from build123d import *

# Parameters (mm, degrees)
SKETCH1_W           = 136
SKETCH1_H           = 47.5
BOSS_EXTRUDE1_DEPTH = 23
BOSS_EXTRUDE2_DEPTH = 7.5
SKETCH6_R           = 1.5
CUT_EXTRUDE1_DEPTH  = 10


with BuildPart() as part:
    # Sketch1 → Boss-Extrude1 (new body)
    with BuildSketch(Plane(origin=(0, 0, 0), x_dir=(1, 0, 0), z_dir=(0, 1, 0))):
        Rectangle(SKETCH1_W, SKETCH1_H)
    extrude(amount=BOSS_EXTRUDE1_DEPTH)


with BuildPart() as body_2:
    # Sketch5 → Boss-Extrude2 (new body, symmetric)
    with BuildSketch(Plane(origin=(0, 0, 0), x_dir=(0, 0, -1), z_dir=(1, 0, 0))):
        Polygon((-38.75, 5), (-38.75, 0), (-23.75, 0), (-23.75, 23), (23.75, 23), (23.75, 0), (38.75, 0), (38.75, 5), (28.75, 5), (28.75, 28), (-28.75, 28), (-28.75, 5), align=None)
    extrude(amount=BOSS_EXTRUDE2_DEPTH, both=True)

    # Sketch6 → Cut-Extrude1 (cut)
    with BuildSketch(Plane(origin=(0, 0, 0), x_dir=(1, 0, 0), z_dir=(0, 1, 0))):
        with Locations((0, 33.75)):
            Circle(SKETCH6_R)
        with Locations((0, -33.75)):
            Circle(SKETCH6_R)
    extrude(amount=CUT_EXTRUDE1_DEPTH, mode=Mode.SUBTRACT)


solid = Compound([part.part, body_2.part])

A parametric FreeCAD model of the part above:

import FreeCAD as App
import Part
import Sketcher

V = App.Vector

doc = App.newDocument("Part")
params = doc.addObject("Spreadsheet::Sheet", "Params")
for row, (alias, value) in enumerate([
    ("sketch1_width", "136 mm"),
    ("sketch1_height", "47.5 mm"),
    ("pad1_length", "23 mm"),
    ("sketch2_width", "5 mm"),
    ("sketch2_width2", "23 mm"),
    ("sketch2_height", "15 mm"),
    ("sketch2_height2", "10 mm"),
    ("sketch2_height3", "47.5 mm"),
    ("pad2_length", "15 mm"),
    ("sketch3_diameter", "3 mm"),
    ("pocket1_length", "10 mm"),
], start=1):
    params.set(f"A{row}", alias)
    params.set(f"B{row}", "=" + value)
    params.setAlias(f"B{row}", alias)

body = doc.addObject("PartDesign::Body", "Body")

# Sketch on XZ plane
sketch1 = body.newObject("Sketcher::SketchObject", "Sketch")
sketch1.AttachmentSupport = (doc.getObject("XZ_Plane"), [""])
sketch1.MapMode = "FlatFace"
sketch1.addGeometry(Part.LineSegment(V(-68, -24, 0), V(-68, 24, 0)), False)
sketch1.addGeometry(Part.LineSegment(V(-68, 24, 0), V(68, 24, 0)), False)
sketch1.addGeometry(Part.LineSegment(V(68, 24, 0), V(68, -24, 0)), False)
sketch1.addGeometry(Part.LineSegment(V(68, -24, 0), V(-68, -24, 0)), False)
sketch1.addConstraint(Sketcher.Constraint("Coincident", 0, 2, 1, 1))
sketch1.addConstraint(Sketcher.Constraint("Coincident", 1, 2, 2, 1))
sketch1.addConstraint(Sketcher.Constraint("Coincident", 2, 2, 3, 1))
sketch1.addConstraint(Sketcher.Constraint("Coincident", 3, 2, 0, 1))
sketch1.addConstraint(Sketcher.Constraint("Vertical", 0))
sketch1.addConstraint(Sketcher.Constraint("Horizontal", 1))
sketch1.addConstraint(Sketcher.Constraint("Vertical", 2))
sketch1.addConstraint(Sketcher.Constraint("Horizontal", 3))
sketch1.addConstraint(Sketcher.Constraint("Symmetric", 0, 2, 2, 2, -1, 1))
sketch1.addConstraint(Sketcher.Constraint("DistanceX", 1, 1, 1, 2, 136.0))
sketch1.addConstraint(Sketcher.Constraint("DistanceY", 0, 1, 0, 2, 47.5))
sketch1.setExpression("Constraints[9]", "Params.sketch1_width")
sketch1.setExpression("Constraints[10]", "Params.sketch1_height")
pad1 = body.newObject("PartDesign::Pad", "Pad")
pad1.Profile = sketch1
pad1.setExpression("Length", "Params.pad1_length")
pad1.Reversed = True
body2 = doc.addObject("PartDesign::Body", "Body001")

# Sketch on YZ plane
sketch2 = body2.newObject("Sketcher::SketchObject", "Sketch001")
sketch2.AttachmentSupport = (doc.getObject("YZ_Plane001"), [""])
sketch2.MapMode = "FlatFace"
sketch2.addGeometry(Part.LineSegment(V(5, 39, 0), V(0, 39, 0)), False)
sketch2.addGeometry(Part.LineSegment(V(0, 39, 0), V(0, 24, 0)), False)
sketch2.addGeometry(Part.LineSegment(V(0, 24, 0), V(23, 24, 0)), False)
sketch2.addGeometry(Part.LineSegment(V(23, 24, 0), V(23, -24, 0)), False)
sketch2.addGeometry(Part.LineSegment(V(23, -24, 0), V(0, -24, 0)), False)
sketch2.addGeometry(Part.LineSegment(V(0, -24, 0), V(0, -39, 0)), False)
sketch2.addGeometry(Part.LineSegment(V(0, -39, 0), V(5, -39, 0)), False)
sketch2.addGeometry(Part.LineSegment(V(5, -39, 0), V(5, -29, 0)), False)
sketch2.addGeometry(Part.LineSegment(V(5, -29, 0), V(28, -29, 0)), False)
sketch2.addGeometry(Part.LineSegment(V(28, -29, 0), V(28, 29, 0)), False)
sketch2.addGeometry(Part.LineSegment(V(28, 29, 0), V(5, 29, 0)), False)
sketch2.addGeometry(Part.LineSegment(V(5, 29, 0), V(5, 39, 0)), False)
sketch2.addConstraint(Sketcher.Constraint("Coincident", 0, 2, 1, 1))
sketch2.addConstraint(Sketcher.Constraint("Coincident", 1, 2, 2, 1))
sketch2.addConstraint(Sketcher.Constraint("Coincident", 2, 2, 3, 1))
sketch2.addConstraint(Sketcher.Constraint("Coincident", 3, 2, 4, 1))
sketch2.addConstraint(Sketcher.Constraint("Coincident", 4, 2, 5, 1))
sketch2.addConstraint(Sketcher.Constraint("Coincident", 5, 2, 6, 1))
sketch2.addConstraint(Sketcher.Constraint("Coincident", 6, 2, 7, 1))
sketch2.addConstraint(Sketcher.Constraint("Coincident", 7, 2, 8, 1))
sketch2.addConstraint(Sketcher.Constraint("Coincident", 8, 2, 9, 1))
sketch2.addConstraint(Sketcher.Constraint("Coincident", 9, 2, 10, 1))
sketch2.addConstraint(Sketcher.Constraint("Coincident", 10, 2, 11, 1))
sketch2.addConstraint(Sketcher.Constraint("Coincident", 11, 2, 0, 1))
sketch2.addConstraint(Sketcher.Constraint("Horizontal", 0))
sketch2.addConstraint(Sketcher.Constraint("Vertical", 1))
sketch2.addConstraint(Sketcher.Constraint("Horizontal", 2))
sketch2.addConstraint(Sketcher.Constraint("Vertical", 3))
sketch2.addConstraint(Sketcher.Constraint("Horizontal", 4))
sketch2.addConstraint(Sketcher.Constraint("Vertical", 5))
sketch2.addConstraint(Sketcher.Constraint("Horizontal", 6))
sketch2.addConstraint(Sketcher.Constraint("Vertical", 7))
sketch2.addConstraint(Sketcher.Constraint("Horizontal", 8))
sketch2.addConstraint(Sketcher.Constraint("Vertical", 9))
sketch2.addConstraint(Sketcher.Constraint("Horizontal", 10))
sketch2.addConstraint(Sketcher.Constraint("Vertical", 11))
sketch2.addConstraint(Sketcher.Constraint("Symmetric", 1, 2, 4, 2, -1, 1))
sketch2.addConstraint(Sketcher.Constraint("Symmetric", 0, 2, 5, 2, -1))
sketch2.addConstraint(Sketcher.Constraint("Symmetric", 7, 2, 10, 2, -1))
sketch2.addConstraint(Sketcher.Constraint("Equal", 4, 8))
sketch2.addConstraint(Sketcher.Constraint("DistanceX", 0, 2, 0, 1, 5.0))
sketch2.addConstraint(Sketcher.Constraint("DistanceX", 2, 1, 2, 2, 23.0))
sketch2.addConstraint(Sketcher.Constraint("DistanceY", 1, 2, 1, 1, 15.0))
sketch2.addConstraint(Sketcher.Constraint("DistanceY", 7, 1, 7, 2, 10.0))
sketch2.addConstraint(Sketcher.Constraint("DistanceY", 3, 2, 3, 1, 47.5))
sketch2.setExpression("Constraints[28]", "Params.sketch2_width")
sketch2.setExpression("Constraints[29]", "Params.sketch2_width2")
sketch2.setExpression("Constraints[30]", "Params.sketch2_height")
sketch2.setExpression("Constraints[31]", "Params.sketch2_height2")
sketch2.setExpression("Constraints[32]", "Params.sketch2_height3")
pad2 = body2.newObject("PartDesign::Pad", "Pad001")
pad2.Profile = sketch2
pad2.setExpression("Length", "Params.pad2_length")
pad2.Midplane = True

# Sketch on XZ plane
sketch3 = body2.newObject("Sketcher::SketchObject", "Sketch002")
sketch3.AttachmentSupport = (doc.getObject("XZ_Plane001"), [""])
sketch3.MapMode = "FlatFace"
sketch3.addGeometry(Part.Circle(V(0, -33.8, 0), V(0, 0, 1), 1.5), False)
sketch3.addGeometry(Part.Circle(V(0, 33.8, 0), V(0, 0, 1), 1.5), False)
sketch3.addConstraint(Sketcher.Constraint("Equal", 0, 1))
sketch3.addConstraint(Sketcher.Constraint("Symmetric", 0, 3, 1, 3, -1, 1))
sketch3.addConstraint(Sketcher.Constraint("PointOnObject", 0, 3, -2))
sketch3.addConstraint(Sketcher.Constraint("Diameter", 0, 3.0))
sketch3.addConstraint(Sketcher.Constraint("DistanceY", 0, 3, 1, 3, 67.5))
sketch3.setExpression("Constraints[3]", "Params.sketch3_diameter")
pocket1 = body2.newObject("PartDesign::Pocket", "Pocket")
pocket1.Profile = sketch3
pocket1.setExpression("Length", "Params.pocket1_length")

doc.recompute()
